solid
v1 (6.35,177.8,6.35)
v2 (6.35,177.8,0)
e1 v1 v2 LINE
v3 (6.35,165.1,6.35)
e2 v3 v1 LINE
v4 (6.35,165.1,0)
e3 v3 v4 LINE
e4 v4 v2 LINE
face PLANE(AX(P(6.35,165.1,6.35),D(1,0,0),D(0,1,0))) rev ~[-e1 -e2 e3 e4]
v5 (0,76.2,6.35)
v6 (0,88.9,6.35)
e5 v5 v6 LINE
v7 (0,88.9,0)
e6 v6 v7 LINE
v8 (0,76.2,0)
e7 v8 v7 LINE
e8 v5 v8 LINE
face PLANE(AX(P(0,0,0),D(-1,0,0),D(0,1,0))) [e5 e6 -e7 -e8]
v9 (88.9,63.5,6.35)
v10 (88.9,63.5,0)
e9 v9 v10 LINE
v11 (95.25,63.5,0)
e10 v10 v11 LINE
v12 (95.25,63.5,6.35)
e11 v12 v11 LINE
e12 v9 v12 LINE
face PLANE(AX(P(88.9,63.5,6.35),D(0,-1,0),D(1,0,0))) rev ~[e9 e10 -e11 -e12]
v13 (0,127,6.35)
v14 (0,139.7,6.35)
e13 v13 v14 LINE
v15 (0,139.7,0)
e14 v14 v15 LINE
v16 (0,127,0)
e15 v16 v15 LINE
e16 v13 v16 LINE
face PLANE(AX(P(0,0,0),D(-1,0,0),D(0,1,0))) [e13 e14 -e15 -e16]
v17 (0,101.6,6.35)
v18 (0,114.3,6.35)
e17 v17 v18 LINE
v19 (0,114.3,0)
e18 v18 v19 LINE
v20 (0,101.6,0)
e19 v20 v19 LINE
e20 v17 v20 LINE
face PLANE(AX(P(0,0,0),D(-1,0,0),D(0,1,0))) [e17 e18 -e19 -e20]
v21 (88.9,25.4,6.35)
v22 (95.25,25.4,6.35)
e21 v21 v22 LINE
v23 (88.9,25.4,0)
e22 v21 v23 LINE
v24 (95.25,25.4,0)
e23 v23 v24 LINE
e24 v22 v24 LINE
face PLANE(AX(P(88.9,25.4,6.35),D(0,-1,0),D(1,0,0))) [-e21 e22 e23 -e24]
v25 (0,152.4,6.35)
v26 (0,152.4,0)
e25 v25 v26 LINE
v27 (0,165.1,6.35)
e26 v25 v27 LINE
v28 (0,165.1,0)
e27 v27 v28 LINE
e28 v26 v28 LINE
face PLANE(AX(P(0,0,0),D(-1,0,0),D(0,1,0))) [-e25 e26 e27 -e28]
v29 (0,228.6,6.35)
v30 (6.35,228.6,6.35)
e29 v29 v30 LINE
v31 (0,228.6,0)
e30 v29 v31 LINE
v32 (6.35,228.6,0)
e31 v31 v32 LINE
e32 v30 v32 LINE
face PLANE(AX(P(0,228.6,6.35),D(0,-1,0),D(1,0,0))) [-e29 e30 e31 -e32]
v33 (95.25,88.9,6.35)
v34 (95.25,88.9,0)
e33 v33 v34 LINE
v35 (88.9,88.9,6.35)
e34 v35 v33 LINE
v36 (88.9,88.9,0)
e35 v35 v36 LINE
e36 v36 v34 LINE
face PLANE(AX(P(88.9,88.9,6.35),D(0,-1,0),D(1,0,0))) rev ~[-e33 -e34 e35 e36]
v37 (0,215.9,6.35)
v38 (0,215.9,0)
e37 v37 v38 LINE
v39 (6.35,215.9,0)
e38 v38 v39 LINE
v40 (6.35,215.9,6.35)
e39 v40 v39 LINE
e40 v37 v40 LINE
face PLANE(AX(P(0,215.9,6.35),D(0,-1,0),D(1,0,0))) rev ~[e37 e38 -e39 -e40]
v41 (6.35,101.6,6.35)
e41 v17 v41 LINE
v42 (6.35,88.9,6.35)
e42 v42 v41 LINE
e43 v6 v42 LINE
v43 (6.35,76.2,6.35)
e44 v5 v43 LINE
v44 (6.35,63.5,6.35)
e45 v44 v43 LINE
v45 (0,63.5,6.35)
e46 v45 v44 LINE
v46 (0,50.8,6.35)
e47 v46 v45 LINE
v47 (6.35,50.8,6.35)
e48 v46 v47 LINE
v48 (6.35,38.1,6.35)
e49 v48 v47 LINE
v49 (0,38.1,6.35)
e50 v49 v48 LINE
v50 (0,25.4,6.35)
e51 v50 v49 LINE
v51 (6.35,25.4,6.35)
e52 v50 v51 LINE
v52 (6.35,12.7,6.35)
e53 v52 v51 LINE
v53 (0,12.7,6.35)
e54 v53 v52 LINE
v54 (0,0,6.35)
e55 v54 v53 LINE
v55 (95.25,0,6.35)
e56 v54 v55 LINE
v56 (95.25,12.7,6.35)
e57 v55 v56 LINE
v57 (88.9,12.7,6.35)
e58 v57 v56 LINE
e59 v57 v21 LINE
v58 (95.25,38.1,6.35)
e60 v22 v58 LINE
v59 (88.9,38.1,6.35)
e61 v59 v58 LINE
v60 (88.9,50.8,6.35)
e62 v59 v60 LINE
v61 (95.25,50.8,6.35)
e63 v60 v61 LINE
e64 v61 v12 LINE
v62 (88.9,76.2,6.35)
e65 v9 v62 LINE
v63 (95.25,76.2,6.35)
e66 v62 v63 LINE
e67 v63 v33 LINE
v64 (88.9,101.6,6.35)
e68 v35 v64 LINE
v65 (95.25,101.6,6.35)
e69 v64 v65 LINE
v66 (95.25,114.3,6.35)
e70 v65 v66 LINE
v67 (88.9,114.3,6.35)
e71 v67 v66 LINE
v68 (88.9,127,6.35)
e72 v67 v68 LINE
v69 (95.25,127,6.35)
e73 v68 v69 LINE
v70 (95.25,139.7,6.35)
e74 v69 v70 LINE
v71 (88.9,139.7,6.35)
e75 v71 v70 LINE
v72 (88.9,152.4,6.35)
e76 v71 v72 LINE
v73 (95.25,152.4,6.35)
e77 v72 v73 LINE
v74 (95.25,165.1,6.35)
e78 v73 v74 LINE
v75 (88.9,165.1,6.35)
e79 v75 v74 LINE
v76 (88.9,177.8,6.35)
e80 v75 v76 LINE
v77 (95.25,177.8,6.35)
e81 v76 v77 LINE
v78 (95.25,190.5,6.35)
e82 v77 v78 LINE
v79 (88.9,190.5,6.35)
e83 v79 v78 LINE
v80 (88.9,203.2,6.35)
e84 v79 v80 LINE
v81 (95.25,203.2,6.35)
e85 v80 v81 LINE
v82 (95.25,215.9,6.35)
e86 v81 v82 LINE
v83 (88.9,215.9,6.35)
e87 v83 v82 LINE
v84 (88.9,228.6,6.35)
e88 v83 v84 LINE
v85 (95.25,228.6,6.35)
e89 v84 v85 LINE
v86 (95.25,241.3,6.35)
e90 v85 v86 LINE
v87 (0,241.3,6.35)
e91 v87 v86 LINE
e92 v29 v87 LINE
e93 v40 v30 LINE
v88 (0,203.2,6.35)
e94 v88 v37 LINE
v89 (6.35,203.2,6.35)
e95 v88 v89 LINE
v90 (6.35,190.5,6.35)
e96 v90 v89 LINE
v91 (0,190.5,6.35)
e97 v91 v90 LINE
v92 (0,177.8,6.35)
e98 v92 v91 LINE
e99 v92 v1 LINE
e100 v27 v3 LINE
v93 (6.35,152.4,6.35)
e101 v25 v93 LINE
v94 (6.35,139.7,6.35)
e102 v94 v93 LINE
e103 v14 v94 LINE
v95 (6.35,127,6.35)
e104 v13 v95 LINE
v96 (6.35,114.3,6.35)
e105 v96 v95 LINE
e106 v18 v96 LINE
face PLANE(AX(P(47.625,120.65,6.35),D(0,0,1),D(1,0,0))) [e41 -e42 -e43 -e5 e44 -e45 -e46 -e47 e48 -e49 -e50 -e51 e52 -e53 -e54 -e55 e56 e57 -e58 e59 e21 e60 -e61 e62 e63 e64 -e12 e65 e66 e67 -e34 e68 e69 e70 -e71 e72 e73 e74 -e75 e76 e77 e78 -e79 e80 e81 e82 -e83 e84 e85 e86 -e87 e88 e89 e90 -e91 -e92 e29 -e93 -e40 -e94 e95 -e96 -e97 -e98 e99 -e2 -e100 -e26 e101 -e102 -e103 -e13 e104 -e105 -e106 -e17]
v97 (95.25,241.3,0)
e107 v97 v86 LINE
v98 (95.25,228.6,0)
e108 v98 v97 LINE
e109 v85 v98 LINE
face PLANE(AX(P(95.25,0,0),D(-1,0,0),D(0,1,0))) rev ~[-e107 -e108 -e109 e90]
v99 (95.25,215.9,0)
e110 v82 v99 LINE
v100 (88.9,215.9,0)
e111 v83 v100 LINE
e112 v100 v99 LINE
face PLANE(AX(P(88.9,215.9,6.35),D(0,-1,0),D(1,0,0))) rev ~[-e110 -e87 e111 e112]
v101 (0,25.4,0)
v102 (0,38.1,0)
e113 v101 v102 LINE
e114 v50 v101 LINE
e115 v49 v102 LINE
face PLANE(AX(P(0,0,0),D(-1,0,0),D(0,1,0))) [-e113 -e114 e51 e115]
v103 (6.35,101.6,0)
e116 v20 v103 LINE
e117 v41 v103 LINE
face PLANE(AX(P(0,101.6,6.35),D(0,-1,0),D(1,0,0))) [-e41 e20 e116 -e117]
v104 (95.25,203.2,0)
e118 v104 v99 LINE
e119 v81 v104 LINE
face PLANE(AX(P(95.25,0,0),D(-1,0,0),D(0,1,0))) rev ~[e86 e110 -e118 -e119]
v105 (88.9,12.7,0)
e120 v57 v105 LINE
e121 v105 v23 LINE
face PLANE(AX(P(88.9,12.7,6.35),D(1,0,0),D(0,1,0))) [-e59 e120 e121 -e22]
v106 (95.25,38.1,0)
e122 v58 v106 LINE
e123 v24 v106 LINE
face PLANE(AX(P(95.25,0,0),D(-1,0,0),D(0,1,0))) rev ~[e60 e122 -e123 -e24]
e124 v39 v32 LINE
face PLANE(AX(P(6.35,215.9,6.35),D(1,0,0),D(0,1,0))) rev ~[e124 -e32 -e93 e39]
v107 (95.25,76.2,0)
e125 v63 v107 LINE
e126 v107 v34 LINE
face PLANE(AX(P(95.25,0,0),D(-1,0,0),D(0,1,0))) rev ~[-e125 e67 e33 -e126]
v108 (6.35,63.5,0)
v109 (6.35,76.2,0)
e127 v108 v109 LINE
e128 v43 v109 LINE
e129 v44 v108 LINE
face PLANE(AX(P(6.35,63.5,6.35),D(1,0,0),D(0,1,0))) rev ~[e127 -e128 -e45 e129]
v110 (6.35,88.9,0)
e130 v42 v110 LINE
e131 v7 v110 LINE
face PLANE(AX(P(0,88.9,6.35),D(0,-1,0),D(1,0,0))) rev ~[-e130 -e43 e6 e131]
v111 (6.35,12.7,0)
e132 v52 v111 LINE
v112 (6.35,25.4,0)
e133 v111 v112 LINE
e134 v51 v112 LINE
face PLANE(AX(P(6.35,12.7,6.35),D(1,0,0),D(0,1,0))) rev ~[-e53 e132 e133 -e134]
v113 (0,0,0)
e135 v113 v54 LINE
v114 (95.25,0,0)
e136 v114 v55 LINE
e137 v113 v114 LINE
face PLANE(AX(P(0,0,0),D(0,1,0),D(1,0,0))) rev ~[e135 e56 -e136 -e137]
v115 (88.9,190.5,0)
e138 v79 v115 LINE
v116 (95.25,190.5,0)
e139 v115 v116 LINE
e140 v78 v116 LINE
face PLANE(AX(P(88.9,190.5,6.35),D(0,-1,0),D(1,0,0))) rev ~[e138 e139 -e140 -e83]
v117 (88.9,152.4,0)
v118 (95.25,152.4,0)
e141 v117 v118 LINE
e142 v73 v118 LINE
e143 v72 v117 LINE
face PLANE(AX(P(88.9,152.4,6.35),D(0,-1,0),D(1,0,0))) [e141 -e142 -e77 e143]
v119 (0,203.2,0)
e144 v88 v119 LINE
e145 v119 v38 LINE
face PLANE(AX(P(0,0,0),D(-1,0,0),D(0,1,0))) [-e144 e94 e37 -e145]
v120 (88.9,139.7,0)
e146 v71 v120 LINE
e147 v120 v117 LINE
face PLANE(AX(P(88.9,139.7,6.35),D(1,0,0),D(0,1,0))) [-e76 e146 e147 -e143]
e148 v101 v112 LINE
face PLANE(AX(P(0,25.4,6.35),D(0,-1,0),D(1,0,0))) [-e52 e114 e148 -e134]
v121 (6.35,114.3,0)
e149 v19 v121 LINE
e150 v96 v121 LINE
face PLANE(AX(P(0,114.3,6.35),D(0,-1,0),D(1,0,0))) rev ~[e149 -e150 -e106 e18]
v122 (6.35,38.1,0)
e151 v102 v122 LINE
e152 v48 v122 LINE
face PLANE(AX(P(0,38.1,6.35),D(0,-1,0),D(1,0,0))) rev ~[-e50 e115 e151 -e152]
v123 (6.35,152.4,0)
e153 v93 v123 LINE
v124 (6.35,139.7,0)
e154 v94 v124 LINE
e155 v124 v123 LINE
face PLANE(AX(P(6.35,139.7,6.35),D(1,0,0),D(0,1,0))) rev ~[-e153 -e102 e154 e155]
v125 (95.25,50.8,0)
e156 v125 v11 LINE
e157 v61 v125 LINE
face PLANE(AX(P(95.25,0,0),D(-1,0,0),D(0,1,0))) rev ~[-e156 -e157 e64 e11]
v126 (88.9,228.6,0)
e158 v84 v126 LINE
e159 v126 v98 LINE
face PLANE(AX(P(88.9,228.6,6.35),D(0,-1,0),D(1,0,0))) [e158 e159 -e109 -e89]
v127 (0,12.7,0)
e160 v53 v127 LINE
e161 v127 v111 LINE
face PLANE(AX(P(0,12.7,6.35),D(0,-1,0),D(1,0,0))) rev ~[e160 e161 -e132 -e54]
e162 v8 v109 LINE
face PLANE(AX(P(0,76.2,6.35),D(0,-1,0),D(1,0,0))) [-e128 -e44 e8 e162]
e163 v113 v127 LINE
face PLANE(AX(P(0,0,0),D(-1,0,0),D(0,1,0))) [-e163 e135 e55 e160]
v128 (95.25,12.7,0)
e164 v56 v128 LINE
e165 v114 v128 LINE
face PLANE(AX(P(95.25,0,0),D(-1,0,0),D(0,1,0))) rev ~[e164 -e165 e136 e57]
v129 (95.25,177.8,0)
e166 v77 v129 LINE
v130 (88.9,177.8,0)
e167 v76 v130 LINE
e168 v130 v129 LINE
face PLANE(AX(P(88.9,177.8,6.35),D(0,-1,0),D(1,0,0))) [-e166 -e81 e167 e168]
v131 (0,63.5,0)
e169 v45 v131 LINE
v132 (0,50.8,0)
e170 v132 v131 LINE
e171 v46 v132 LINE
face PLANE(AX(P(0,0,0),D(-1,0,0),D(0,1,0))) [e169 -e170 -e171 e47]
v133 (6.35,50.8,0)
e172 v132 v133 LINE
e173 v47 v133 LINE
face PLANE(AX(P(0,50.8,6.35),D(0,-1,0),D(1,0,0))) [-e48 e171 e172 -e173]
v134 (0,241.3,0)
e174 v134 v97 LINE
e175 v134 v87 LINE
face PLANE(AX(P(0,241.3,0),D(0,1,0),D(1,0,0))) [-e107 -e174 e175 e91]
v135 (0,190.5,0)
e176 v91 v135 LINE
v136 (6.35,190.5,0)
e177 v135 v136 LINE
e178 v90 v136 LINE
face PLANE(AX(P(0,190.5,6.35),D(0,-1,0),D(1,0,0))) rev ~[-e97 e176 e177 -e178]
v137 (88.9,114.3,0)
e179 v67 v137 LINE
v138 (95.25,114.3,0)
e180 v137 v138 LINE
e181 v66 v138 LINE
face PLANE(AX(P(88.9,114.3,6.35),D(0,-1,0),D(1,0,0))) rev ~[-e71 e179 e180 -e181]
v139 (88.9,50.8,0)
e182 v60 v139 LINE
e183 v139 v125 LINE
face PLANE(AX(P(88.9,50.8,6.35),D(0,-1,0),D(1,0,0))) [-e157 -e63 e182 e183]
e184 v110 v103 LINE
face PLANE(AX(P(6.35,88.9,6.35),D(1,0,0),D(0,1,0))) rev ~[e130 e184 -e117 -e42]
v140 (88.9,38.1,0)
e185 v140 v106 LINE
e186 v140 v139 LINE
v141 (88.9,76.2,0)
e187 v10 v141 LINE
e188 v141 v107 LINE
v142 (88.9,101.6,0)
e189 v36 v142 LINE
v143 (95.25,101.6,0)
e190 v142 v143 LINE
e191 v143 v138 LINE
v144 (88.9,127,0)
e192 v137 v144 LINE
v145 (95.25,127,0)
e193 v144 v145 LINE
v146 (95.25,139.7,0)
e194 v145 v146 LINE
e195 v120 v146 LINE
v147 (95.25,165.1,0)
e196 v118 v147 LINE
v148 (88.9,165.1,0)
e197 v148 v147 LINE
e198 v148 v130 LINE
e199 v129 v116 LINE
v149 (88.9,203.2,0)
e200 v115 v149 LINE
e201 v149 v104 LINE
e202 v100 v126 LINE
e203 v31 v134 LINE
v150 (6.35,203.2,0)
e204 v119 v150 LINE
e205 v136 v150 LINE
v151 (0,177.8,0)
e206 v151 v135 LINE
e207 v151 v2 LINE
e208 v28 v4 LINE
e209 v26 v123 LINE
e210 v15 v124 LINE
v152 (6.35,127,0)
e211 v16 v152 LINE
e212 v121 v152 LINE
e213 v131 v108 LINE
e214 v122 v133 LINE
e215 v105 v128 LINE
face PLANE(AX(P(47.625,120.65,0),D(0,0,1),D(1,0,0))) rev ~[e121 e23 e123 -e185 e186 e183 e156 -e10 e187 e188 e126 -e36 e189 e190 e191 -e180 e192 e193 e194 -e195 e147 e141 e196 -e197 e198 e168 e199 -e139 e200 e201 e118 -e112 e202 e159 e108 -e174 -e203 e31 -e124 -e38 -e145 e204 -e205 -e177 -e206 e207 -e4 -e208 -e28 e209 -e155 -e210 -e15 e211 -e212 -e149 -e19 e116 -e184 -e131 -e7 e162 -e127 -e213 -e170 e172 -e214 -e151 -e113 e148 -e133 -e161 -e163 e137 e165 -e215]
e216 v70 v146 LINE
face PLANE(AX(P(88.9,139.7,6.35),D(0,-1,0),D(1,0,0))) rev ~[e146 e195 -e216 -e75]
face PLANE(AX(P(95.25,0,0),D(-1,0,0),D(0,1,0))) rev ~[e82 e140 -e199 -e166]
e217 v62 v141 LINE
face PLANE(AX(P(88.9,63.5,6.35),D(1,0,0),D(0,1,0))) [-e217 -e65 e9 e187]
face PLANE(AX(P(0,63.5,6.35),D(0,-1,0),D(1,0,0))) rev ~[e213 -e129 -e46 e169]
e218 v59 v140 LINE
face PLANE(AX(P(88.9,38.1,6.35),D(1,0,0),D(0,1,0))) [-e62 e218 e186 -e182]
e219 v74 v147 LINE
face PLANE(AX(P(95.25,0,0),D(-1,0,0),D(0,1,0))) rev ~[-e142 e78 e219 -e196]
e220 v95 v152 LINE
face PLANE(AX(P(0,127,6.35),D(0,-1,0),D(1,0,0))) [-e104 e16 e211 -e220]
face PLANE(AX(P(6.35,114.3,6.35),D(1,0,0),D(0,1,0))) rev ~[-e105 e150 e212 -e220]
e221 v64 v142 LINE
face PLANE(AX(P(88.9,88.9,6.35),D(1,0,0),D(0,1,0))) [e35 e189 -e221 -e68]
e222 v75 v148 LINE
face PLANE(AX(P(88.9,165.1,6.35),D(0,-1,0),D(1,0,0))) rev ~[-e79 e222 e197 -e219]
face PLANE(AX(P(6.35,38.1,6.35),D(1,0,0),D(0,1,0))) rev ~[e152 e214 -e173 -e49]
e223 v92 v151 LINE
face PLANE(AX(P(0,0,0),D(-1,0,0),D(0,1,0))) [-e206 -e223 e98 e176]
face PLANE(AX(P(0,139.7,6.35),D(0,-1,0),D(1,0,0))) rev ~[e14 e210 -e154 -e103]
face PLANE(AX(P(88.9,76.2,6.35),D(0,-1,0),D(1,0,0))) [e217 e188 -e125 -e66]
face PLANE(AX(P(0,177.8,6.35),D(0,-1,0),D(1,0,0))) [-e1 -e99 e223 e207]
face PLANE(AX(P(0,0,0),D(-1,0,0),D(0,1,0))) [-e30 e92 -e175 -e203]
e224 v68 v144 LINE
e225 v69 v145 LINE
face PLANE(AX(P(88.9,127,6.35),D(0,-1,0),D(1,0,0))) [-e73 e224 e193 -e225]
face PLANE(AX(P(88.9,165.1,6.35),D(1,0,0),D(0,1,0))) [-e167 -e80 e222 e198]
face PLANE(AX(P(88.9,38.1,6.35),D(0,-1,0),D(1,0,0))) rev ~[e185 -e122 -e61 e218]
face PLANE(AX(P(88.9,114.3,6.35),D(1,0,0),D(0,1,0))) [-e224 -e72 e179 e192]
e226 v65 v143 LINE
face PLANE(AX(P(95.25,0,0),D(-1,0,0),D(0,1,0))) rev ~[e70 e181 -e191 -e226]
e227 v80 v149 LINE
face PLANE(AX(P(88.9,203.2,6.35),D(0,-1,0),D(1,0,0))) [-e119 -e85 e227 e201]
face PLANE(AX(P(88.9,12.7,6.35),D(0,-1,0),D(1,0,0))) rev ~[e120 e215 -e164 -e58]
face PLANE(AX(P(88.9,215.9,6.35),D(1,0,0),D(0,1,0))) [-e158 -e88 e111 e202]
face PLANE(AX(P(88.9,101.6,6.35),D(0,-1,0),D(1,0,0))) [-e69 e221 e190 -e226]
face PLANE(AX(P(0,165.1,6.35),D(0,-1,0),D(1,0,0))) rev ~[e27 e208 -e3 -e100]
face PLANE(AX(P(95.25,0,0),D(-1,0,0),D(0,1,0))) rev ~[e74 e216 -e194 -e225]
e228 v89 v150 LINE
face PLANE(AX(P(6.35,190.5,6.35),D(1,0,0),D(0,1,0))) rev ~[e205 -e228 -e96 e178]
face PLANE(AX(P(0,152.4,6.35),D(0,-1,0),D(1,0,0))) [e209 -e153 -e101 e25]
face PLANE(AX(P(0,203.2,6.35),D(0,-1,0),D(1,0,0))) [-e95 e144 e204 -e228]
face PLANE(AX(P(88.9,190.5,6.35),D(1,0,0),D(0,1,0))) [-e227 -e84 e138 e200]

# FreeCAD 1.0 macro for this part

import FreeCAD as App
import Part
import Sketcher
Q = App.Units.Quantity


def add_polygon(sketch, points):
    """Adds a closed chain of lines whose ends are joined by coincident constraints."""
    first, n = sketch.GeometryCount, len(points)
    for a, b in zip(points, points[1:] + points[:1]):
        sketch.addGeometry(Part.LineSegment(App.Vector(*a, 0), App.Vector(*b, 0)), False)
    for i in range(n):
        sketch.addConstraint(Sketcher.Constraint("Coincident", first + i, 2, first + (i + 1) % n, 1))

doc = App.newDocument("Part")
body = doc.addObject("PartDesign::Body", "Body")

# Sketch on XY plane
sketch1 = body.newObject("Sketcher::SketchObject", "Sketch")
sketch1.AttachmentSupport = (doc.getObject("XY_Plane"), [""])
sketch1.MapMode = "FlatFace"
add_polygon(sketch1, [(0, 241), (0, 0), (95, 0), (95, 241)])  # lines 0-3
sketch1.addConstraint(Sketcher.Constraint("Vertical", 0))
sketch1.addConstraint(Sketcher.Constraint("Horizontal", 1))
sketch1.addConstraint(Sketcher.Constraint("Vertical", 2))
sketch1.addConstraint(Sketcher.Constraint("Horizontal", 3))
sketch1.addConstraint(Sketcher.Constraint("Coincident", 0, 2, -1, 1))
sketch1.addConstraint(Sketcher.Constraint("DistanceY", 0, 2, 0, 1, Q("9.5 in")))
sketch1.addConstraint(Sketcher.Constraint("DistanceX", 1, 1, 1, 2, Q("3.75 in")))
pad1 = body.newObject("PartDesign::Pad", "Pad")
pad1.Profile = sketch1
pad1.Length = Q("0.25 in")

# Sketch on XY plane
sketch2 = body.newObject("Sketcher::SketchObject", "Sketch001")
sketch2.AttachmentSupport = (doc.getObject("XY_Plane"), [""])
sketch2.MapMode = "FlatFace"
sketch2.AttachmentOffset = App.Placement(App.Vector(0, 0, 0.25 * 25.4), App.Rotation())
add_polygon(sketch2, [(0, 229), (0, 216), (6, 216), (6, 229)])  # lines 0-3
add_polygon(sketch2, [(89, 229), (89, 216), (95, 216), (95, 229)])  # lines 4-7
sketch2.addConstraint(Sketcher.Constraint("Vertical", 0))
sketch2.addConstraint(Sketcher.Constraint("Horizontal", 1))
sketch2.addConstraint(Sketcher.Constraint("Vertical", 2))
sketch2.addConstraint(Sketcher.Constraint("Horizontal", 3))
sketch2.addConstraint(Sketcher.Constraint("Vertical", 4))
sketch2.addConstraint(Sketcher.Constraint("Horizontal", 5))
sketch2.addConstraint(Sketcher.Constraint("Vertical", 6))
sketch2.addConstraint(Sketcher.Constraint("Horizontal", 7))
sketch2.addConstraint(Sketcher.Constraint("PointOnObject", 0, 2, -2))
sketch2.addConstraint(Sketcher.Constraint("Horizontal", 1, 2, 4, 2))
sketch2.addConstraint(Sketcher.Constraint("Horizontal", 3, 2, 6, 2))
sketch2.addConstraint(Sketcher.Constraint("Equal", 3, 5))
sketch2.addConstraint(Sketcher.Constraint("DistanceY", 0, 2, 0, 1, Q("0.5 in")))
sketch2.addConstraint(Sketcher.Constraint("DistanceY", -1, 1, 2, 2, Q("9 in")))
sketch2.addConstraint(Sketcher.Constraint("DistanceX", 1, 1, 1, 2, Q("0.25 in")))
sketch2.addConstraint(Sketcher.Constraint("DistanceX", -1, 1, 4, 2, Q("3.5 in")))
pocket1 = body.newObject("PartDesign::Pocket", "Pocket")
pocket1.Profile = sketch2
pocket1.Type = "ThroughAll"
doc.recompute()

linearpattern = body.newObject("PartDesign::LinearPattern", "LinearPattern")
linearpattern.Originals = [pocket1]
linearpattern.Direction = (doc.getObject("Y_Axis"), [""])
linearpattern.Mode = "offset"
linearpattern.Offset = Q("1 in")
linearpattern.Occurrences = 9
linearpattern.Reversed = True
body.Tip = linearpattern

doc.recompute()
